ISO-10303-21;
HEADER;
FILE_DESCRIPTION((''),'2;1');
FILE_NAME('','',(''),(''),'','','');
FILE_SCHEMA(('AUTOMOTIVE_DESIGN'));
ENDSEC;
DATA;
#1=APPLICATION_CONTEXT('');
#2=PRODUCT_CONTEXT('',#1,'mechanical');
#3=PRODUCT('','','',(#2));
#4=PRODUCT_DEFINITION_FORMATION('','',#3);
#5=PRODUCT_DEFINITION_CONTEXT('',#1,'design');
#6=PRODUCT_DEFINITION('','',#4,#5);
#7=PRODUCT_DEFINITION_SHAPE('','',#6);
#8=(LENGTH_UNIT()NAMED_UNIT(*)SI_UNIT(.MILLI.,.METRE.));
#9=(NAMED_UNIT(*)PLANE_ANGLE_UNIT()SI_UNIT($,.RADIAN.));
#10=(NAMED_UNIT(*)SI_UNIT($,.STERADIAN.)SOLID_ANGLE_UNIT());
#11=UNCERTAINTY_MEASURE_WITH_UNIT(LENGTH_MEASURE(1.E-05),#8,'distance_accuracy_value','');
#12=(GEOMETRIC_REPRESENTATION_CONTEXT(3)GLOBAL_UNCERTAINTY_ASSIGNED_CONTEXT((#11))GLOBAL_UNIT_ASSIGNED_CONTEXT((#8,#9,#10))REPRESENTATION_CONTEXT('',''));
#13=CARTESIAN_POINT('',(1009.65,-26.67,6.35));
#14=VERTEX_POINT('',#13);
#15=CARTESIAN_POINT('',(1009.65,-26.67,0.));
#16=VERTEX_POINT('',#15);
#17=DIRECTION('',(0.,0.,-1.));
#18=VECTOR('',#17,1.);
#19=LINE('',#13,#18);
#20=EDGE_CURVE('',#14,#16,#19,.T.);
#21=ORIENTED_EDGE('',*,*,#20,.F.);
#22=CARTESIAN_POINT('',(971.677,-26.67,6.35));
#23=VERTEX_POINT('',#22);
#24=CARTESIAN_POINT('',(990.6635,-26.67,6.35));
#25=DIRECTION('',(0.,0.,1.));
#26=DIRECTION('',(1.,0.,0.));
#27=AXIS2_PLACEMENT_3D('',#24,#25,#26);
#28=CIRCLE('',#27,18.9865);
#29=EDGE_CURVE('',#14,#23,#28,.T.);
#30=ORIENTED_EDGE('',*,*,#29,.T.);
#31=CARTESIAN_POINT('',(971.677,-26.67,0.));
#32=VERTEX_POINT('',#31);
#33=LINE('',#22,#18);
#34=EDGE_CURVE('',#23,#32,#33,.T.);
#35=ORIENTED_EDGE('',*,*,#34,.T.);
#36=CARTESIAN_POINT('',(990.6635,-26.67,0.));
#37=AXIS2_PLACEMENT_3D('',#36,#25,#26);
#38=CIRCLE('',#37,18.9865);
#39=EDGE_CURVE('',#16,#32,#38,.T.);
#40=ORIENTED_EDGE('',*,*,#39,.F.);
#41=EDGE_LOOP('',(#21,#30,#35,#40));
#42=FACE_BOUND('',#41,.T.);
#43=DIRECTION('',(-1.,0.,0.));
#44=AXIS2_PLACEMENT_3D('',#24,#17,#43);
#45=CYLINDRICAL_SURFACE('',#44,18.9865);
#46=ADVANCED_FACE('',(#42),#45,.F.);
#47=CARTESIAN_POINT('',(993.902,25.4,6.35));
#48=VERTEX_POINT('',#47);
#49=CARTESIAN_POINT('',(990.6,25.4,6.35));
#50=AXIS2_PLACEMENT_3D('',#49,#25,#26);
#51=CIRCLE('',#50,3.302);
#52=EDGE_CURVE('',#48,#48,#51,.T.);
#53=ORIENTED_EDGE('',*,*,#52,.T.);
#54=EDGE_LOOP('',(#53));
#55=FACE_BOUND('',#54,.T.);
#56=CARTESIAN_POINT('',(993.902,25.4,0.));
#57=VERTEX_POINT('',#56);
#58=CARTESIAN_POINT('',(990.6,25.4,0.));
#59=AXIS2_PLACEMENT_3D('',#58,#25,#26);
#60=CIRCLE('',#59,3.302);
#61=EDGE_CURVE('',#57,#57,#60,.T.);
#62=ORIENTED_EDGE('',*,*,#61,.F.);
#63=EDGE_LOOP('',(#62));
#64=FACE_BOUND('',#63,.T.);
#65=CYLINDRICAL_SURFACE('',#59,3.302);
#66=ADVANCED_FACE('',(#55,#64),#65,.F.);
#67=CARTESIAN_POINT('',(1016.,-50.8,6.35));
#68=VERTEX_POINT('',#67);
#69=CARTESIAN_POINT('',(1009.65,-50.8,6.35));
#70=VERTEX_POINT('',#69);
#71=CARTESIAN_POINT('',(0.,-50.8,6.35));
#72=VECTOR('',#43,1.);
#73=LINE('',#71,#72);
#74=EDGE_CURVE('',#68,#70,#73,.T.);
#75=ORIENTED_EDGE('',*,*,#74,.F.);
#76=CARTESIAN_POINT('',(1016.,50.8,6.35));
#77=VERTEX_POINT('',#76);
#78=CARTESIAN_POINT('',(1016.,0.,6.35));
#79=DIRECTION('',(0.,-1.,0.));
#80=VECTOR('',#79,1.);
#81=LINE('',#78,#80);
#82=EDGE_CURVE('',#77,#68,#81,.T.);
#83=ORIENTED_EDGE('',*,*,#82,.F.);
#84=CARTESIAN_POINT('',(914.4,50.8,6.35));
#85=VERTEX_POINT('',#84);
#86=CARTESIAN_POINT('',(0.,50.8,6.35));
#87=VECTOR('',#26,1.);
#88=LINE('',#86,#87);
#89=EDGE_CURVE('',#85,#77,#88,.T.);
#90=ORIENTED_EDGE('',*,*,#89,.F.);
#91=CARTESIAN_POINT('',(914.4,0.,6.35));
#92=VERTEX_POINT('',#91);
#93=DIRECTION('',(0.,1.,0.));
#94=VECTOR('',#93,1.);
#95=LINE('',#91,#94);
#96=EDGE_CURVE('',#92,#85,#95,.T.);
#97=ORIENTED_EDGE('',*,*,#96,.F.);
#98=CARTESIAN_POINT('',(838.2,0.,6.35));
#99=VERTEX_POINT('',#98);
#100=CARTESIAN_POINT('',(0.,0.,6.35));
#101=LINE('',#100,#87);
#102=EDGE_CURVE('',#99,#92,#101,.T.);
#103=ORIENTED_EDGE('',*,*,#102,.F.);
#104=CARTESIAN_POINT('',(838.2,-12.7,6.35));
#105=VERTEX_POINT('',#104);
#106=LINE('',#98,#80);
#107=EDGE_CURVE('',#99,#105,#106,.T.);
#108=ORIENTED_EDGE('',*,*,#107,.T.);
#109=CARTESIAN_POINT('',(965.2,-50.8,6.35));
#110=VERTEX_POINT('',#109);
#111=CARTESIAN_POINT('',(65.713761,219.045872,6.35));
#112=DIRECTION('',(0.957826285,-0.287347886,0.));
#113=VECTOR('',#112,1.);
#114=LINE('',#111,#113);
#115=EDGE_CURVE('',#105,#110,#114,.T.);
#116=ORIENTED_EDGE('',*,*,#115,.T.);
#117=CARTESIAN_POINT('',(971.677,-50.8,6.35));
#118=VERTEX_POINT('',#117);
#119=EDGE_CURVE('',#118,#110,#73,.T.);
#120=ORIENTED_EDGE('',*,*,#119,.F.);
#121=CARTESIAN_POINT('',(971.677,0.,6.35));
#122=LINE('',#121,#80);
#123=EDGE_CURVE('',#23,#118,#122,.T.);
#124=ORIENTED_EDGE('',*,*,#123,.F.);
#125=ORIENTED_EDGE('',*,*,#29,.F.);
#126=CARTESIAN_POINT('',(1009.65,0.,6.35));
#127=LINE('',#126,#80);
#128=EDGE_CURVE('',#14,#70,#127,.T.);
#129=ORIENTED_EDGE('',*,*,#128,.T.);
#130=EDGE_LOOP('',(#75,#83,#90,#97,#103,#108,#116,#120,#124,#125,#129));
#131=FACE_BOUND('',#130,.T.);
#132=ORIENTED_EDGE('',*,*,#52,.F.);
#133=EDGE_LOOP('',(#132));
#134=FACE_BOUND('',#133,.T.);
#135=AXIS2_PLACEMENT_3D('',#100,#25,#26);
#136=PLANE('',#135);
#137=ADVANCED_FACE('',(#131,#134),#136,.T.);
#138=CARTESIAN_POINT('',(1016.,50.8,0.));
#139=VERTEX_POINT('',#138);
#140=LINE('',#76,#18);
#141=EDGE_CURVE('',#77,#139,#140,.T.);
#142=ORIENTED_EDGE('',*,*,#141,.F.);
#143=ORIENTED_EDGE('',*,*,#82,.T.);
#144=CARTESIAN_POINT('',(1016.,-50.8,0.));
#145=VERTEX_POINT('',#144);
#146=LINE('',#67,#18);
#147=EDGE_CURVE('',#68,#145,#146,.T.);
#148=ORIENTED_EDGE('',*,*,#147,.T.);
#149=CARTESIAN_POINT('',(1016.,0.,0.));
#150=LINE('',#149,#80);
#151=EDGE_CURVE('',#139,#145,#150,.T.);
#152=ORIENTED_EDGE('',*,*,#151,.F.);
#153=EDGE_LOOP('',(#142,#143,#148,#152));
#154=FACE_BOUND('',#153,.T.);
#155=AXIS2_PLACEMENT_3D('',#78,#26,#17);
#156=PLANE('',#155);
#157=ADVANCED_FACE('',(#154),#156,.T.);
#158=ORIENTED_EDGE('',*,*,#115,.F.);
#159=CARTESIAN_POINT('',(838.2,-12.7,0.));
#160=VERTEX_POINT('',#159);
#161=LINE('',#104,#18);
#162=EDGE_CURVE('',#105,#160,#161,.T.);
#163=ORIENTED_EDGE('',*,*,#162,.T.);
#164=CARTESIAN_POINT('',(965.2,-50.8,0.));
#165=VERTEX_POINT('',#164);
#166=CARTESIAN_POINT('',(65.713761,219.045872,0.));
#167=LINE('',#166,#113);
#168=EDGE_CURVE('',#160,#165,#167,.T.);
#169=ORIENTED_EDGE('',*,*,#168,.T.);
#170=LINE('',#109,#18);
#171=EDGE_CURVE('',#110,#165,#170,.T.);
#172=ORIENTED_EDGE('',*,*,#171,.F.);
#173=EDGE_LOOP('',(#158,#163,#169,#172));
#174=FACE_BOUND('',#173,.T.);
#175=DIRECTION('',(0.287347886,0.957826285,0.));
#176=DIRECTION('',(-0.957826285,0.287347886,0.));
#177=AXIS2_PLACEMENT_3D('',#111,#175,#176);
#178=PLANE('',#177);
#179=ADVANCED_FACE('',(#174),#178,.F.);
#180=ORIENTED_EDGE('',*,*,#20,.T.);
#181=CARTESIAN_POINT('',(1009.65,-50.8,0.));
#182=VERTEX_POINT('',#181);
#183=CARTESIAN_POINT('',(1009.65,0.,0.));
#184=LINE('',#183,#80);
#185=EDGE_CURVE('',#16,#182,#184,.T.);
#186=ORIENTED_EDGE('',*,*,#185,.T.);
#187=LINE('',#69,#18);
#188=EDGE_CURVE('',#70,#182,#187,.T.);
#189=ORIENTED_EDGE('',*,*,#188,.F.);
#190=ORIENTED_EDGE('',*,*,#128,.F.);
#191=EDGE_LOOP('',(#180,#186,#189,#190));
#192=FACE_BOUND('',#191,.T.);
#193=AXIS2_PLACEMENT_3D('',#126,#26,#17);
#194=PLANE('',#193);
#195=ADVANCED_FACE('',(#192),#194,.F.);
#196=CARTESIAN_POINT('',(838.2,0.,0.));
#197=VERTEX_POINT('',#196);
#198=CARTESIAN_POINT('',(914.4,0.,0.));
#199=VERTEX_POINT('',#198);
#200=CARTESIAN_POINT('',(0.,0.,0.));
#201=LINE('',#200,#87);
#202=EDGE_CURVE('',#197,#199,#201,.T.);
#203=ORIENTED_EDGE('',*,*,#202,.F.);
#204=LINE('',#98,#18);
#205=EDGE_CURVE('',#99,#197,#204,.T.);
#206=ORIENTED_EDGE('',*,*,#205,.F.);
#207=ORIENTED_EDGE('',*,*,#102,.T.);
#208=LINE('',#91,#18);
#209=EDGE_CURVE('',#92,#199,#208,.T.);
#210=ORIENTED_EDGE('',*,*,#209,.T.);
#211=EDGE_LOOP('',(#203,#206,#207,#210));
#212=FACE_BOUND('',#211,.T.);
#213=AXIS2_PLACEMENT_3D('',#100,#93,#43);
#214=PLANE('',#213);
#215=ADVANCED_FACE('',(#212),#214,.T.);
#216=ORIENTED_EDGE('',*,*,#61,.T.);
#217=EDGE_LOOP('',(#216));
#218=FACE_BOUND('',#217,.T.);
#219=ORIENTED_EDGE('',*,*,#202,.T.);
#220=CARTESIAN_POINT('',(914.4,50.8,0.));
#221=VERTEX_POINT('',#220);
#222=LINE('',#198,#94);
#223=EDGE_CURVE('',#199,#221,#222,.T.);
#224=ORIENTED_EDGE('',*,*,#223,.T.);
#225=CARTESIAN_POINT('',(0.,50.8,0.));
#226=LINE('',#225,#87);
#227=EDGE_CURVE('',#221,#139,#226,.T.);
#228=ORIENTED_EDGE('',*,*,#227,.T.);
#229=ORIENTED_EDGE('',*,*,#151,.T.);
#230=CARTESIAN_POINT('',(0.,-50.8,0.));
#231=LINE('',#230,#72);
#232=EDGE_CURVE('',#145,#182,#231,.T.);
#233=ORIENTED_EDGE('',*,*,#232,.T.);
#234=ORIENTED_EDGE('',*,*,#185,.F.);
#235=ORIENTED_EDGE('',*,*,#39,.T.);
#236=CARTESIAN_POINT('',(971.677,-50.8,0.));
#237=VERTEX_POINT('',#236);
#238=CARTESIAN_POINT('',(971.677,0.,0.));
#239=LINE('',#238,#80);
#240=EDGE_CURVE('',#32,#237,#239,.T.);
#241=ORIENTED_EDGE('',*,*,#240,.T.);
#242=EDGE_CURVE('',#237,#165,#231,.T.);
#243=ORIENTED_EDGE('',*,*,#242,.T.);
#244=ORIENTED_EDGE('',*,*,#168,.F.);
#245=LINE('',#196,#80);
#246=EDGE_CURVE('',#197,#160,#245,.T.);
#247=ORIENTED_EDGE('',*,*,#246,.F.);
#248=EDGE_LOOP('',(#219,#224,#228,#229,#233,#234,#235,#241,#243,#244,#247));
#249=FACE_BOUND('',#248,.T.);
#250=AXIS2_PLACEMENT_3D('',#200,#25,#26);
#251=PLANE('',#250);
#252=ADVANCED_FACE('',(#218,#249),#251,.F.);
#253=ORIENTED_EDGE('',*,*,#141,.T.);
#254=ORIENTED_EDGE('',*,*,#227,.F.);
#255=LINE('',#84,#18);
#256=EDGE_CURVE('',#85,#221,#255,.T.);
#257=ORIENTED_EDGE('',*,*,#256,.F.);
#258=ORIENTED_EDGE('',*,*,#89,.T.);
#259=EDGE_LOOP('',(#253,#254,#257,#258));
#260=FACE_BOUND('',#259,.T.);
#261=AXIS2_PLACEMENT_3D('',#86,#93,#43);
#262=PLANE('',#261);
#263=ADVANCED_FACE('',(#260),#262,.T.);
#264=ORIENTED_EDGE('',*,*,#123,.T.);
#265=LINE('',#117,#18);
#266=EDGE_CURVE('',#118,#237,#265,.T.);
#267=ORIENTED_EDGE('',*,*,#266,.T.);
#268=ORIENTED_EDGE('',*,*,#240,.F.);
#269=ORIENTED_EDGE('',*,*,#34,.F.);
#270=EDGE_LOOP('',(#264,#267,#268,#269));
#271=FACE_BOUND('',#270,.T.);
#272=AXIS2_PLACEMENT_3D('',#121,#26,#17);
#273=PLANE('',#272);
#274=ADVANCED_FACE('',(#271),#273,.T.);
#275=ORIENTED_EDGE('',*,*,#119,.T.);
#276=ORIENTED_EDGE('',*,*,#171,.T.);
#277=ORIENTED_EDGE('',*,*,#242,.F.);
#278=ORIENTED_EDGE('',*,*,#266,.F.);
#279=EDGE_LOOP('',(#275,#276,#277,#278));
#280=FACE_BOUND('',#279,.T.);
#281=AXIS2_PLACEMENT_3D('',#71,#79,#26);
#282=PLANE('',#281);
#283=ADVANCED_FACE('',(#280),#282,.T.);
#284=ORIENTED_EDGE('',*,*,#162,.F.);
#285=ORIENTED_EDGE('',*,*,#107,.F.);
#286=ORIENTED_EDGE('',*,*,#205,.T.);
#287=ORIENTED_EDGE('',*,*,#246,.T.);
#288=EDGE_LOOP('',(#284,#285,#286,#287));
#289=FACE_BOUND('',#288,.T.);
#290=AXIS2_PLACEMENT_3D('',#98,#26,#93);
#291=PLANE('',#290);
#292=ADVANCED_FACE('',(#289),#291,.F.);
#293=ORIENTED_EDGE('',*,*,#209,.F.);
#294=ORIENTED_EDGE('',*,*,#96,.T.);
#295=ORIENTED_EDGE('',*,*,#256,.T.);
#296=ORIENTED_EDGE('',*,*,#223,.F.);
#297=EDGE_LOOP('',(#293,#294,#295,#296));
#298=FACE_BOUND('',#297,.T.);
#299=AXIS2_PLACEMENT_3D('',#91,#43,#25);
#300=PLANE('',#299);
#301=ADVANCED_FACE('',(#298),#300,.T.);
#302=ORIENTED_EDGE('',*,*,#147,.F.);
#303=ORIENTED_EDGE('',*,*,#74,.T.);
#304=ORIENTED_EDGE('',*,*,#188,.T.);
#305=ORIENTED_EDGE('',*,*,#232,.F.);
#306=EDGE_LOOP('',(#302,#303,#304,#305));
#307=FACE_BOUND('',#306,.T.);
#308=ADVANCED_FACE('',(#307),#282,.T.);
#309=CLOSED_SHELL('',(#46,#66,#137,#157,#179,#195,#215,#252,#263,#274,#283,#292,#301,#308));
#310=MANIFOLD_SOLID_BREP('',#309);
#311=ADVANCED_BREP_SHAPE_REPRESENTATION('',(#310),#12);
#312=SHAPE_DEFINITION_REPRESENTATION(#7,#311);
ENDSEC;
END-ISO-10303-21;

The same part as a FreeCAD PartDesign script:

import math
import FreeCAD as App
import Part
import Sketcher

V = App.Vector
Q = App.Units.Quantity

doc = App.newDocument("Part")
body = doc.addObject("PartDesign::Body", "Body")

# Sketch on XY plane
sketch1 = body.newObject("Sketcher::SketchObject", "Sketch")
sketch1.AttachmentSupport = (doc.getObject("XY_Plane"), [""])
sketch1.MapMode = "FlatFace"
sketch1.addGeometry(Part.LineSegment(V(914, 0, 0), V(838, 0, 0)), False)
sketch1.addGeometry(Part.LineSegment(V(838, 0, 0), V(838, -13, 0)), False)
sketch1.addGeometry(Part.LineSegment(V(838, -13, 0), V(965, -51, 0)), False)
sketch1.addGeometry(Part.LineSegment(V(965, -51, 0), V(972, -51, 0)), False)
sketch1.addGeometry(Part.LineSegment(V(972, -51, 0), V(972, -27, 0)), False)
sketch1.addGeometry(Part.ArcOfCircle(Part.Circle(V(991, -27, 0), V(0, 0, 1), 19), math.radians(0), math.radians(180)), False)
sketch1.addGeometry(Part.LineSegment(V(1010, -27, 0), V(1010, -51, 0)), False)
sketch1.addGeometry(Part.LineSegment(V(1010, -51, 0), V(1016, -51, 0)), False)
sketch1.addGeometry(Part.LineSegment(V(1016, -51, 0), V(1016, 51, 0)), False)
sketch1.addGeometry(Part.LineSegment(V(1016, 51, 0), V(914, 51, 0)), False)
sketch1.addGeometry(Part.LineSegment(V(914, 51, 0), V(914, 0, 0)), False)
sketch1.addConstraint(Sketcher.Constraint("Coincident", 0, 2, 1, 1))
sketch1.addConstraint(Sketcher.Constraint("Coincident", 1, 2, 2, 1))
sketch1.addConstraint(Sketcher.Constraint("Coincident", 2, 2, 3, 1))
sketch1.addConstraint(Sketcher.Constraint("Coincident", 3, 2, 4, 1))
sketch1.addConstraint(Sketcher.Constraint("Tangent", 4, 2, 5, 2))
sketch1.addConstraint(Sketcher.Constraint("Tangent", 5, 1, 6, 1))
sketch1.addConstraint(Sketcher.Constraint("Coincident", 6, 2, 7, 1))
sketch1.addConstraint(Sketcher.Constraint("Coincident", 7, 2, 8, 1))
sketch1.addConstraint(Sketcher.Constraint("Coincident", 8, 2, 9, 1))
sketch1.addConstraint(Sketcher.Constraint("Coincident", 9, 2, 10, 1))
sketch1.addConstraint(Sketcher.Constraint("Coincident", 10, 2, 0, 1))
sketch1.addConstraint(Sketcher.Constraint("Horizontal", 0))
sketch1.addConstraint(Sketcher.Constraint("Vertical", 1))
sketch1.addConstraint(Sketcher.Constraint("Horizontal", 3))
sketch1.addConstraint(Sketcher.Constraint("Vertical", 4))
sketch1.addConstraint(Sketcher.Constraint("Vertical", 6))
sketch1.addConstraint(Sketcher.Constraint("Horizontal", 7))
sketch1.addConstraint(Sketcher.Constraint("Vertical", 8))
sketch1.addConstraint(Sketcher.Constraint("Horizontal", 9))
sketch1.addConstraint(Sketcher.Constraint("Vertical", 10))
sketch1.addConstraint(Sketcher.Constraint("PointOnObject", 0, 2, -1))
sketch1.addConstraint(Sketcher.Constraint("Horizontal", 3, 2, 6, 2))
sketch1.addConstraint(Sketcher.Constraint("Equal", 9, 8))
sketch1.addConstraint(Sketcher.Constraint("DistanceX", 0, 2, 0, 1, Q("3 in")))
sketch1.addConstraint(Sketcher.Constraint("DistanceX", 9, 2, 9, 1, Q("4 in")))
sketch1.addConstraint(Sketcher.Constraint("DistanceY", 10, 2, 10, 1, Q("2 in")))
sketch1.addConstraint(Sketcher.Constraint("DistanceY", 1, 2, 1, 1, Q("0.5 in")))
sketch1.addConstraint(Sketcher.Constraint("DistanceX", -1, 1, 0, 2, Q("33 in")))
sketch1.addConstraint(Sketcher.Constraint("DistanceX", -1, 1, 2, 2, Q("38 in")))
sketch1.addConstraint(Sketcher.Constraint("DistanceX", 7, 1, 7, 2, Q("0.25 in")))
sketch1.addConstraint(Sketcher.Constraint("DistanceY", 4, 1, 4, 2, Q("0.95 in")))
sketch1.addConstraint(Sketcher.Constraint("Radius", 5, Q("0.7475 in")))
pad1 = body.newObject("PartDesign::Pad", "Pad")
pad1.Profile = sketch1
pad1.Length = Q("0.25 in")

# Sketch on XY plane
sketch2 = body.newObject("Sketcher::SketchObject", "Sketch001")
sketch2.AttachmentSupport = (doc.getObject("XY_Plane"), [""])
sketch2.MapMode = "FlatFace"
sketch2.AttachmentOffset = App.Placement(V(0, 0, 0.25 * 25.4), App.Rotation())
sketch2.addGeometry(Part.Circle(V(990.6, 25.4, 0), V(0, 0, 1), 3.3), False)
sketch2.addConstraint(Sketcher.Constraint("Diameter", 0, Q("0.26 in")))
sketch2.addConstraint(Sketcher.Constraint("DistanceX", -1, 1, 0, 3, Q("39 in")))
sketch2.addConstraint(Sketcher.Constraint("DistanceY", -1, 1, 0, 3, Q("1 in")))
pocket1 = body.newObject("PartDesign::Pocket", "Pocket")
pocket1.Profile = sketch2
pocket1.Length = Q("0.25 in")

doc.recompute()
